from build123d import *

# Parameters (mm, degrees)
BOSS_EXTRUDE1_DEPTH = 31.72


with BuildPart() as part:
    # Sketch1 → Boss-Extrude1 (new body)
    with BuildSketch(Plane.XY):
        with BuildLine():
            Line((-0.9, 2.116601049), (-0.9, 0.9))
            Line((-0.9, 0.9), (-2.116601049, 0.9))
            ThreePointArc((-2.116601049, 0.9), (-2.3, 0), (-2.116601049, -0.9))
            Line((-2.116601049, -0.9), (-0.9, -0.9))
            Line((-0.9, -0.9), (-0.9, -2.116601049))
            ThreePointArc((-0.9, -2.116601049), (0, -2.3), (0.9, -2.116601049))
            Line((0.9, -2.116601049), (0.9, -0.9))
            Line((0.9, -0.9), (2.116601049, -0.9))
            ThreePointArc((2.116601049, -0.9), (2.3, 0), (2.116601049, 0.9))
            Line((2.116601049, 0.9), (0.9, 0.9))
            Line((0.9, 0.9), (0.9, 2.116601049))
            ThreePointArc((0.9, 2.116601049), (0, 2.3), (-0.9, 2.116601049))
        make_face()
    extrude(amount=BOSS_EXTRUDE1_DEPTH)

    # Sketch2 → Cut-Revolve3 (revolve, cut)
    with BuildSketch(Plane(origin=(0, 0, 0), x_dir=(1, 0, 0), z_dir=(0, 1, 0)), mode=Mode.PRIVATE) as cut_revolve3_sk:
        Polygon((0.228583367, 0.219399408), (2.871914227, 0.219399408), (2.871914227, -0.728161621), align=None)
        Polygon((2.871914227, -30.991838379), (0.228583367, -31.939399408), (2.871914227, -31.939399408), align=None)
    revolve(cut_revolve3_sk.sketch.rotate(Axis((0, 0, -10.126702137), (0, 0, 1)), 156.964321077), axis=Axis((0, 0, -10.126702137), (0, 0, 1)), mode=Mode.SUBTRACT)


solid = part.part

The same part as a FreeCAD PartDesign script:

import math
import FreeCAD as App
import Part
import Sketcher

doc = App.newDocument("Part")
body = doc.addObject("PartDesign::Body", "Body")

# Sketch on XY plane
sketch1 = body.newObject("Sketcher::SketchObject", "Sketch")
sketch1.AttachmentSupport = (doc.getObject("XY_Plane"), [""])
sketch1.MapMode = "FlatFace"
sketch1.addGeometry(Part.LineSegment(App.Vector(-0.9, 2.116601, 0), App.Vector(-0.9, 0.9, 0)), False)
sketch1.addGeometry(Part.LineSegment(App.Vector(-0.9, 0.9, 0), App.Vector(-2.116601, 0.9, 0)), False)
sketch1.addGeometry(Part.ArcOfCircle(Part.Circle(App.Vector(0, 0, 0), App.Vector(0, 0, 1), 2.3), math.radians(156.964316), math.radians(203.035684)), False)
sketch1.addGeometry(Part.LineSegment(App.Vector(-2.116601, -0.9, 0), App.Vector(-0.9, -0.9, 0)), False)
sketch1.addGeometry(Part.LineSegment(App.Vector(-0.9, -0.9, 0), App.Vector(-0.9, -2.116601, 0)), False)
sketch1.addGeometry(Part.ArcOfCircle(Part.Circle(App.Vector(0, 0, 0), App.Vector(0, 0, 1), 2.3), math.radians(-113.035684), math.radians(-66.964316)), False)
sketch1.addGeometry(Part.LineSegment(App.Vector(0.9, -2.116601, 0), App.Vector(0.9, -0.9, 0)), False)
sketch1.addGeometry(Part.LineSegment(App.Vector(0.9, -0.9, 0), App.Vector(2.116601, -0.9, 0)), False)
sketch1.addGeometry(Part.ArcOfCircle(Part.Circle(App.Vector(0, 0, 0), App.Vector(0, 0, 1), 2.3), math.radians(-23.035684), math.radians(23.035684)), False)
sketch1.addGeometry(Part.LineSegment(App.Vector(2.116601, 0.9, 0), App.Vector(0.9, 0.9, 0)), False)
sketch1.addGeometry(Part.LineSegment(App.Vector(0.9, 0.9, 0), App.Vector(0.9, 2.116601, 0)), False)
sketch1.addGeometry(Part.ArcOfCircle(Part.Circle(App.Vector(0, 0, 0), App.Vector(0, 0, 1), 2.3), math.radians(66.964316), math.radians(113.035684)), False)
sketch1.addConstraint(Sketcher.Constraint("Coincident", 0, 2, 1, 1))
sketch1.addConstraint(Sketcher.Constraint("Coincident", 1, 2, 2, 1))
sketch1.addConstraint(Sketcher.Constraint("Coincident", 2, 2, 3, 1))
sketch1.addConstraint(Sketcher.Constraint("Coincident", 3, 2, 4, 1))
sketch1.addConstraint(Sketcher.Constraint("Coincident", 4, 2, 5, 1))
sketch1.addConstraint(Sketcher.Constraint("Coincident", 5, 2, 6, 1))
sketch1.addConstraint(Sketcher.Constraint("Coincident", 6, 2, 7, 1))
sketch1.addConstraint(Sketcher.Constraint("Coincident", 7, 2, 8, 1))
sketch1.addConstraint(Sketcher.Constraint("Coincident", 8, 2, 9, 1))
sketch1.addConstraint(Sketcher.Constraint("Coincident", 9, 2, 10, 1))
sketch1.addConstraint(Sketcher.Constraint("Coincident", 10, 2, 11, 1))
sketch1.addConstraint(Sketcher.Constraint("Coincident", 11, 2, 0, 1))
sketch1.addConstraint(Sketcher.Constraint("Vertical", 0))
sketch1.addConstraint(Sketcher.Constraint("Horizontal", 1))
sketch1.addConstraint(Sketcher.Constraint("Horizontal", 3))
sketch1.addConstraint(Sketcher.Constraint("Vertical", 4))
sketch1.addConstraint(Sketcher.Constraint("Vertical", 6))
sketch1.addConstraint(Sketcher.Constraint("Horizontal", 7))
sketch1.addConstraint(Sketcher.Constraint("Horizontal", 9))
sketch1.addConstraint(Sketcher.Constraint("Vertical", 10))
sketch1.addConstraint(Sketcher.Constraint("Coincident", 2, 3, -1, 1))
sketch1.addConstraint(Sketcher.Constraint("Coincident", 5, 3, -1, 1))
sketch1.addConstraint(Sketcher.Constraint("Coincident", 8, 3, -1, 1))
sketch1.addConstraint(Sketcher.Constraint("Coincident", 11, 3, -1, 1))
sketch1.addConstraint(Sketcher.Constraint("Equal", 2, 5))
sketch1.addConstraint(Sketcher.Constraint("Equal", 5, 8))
sketch1.addConstraint(Sketcher.Constraint("Equal", 8, 11))
sketch1.addConstraint(Sketcher.Constraint("Symmetric", 0, 2, 6, 2, -1, 1))
sketch1.addConstraint(Sketcher.Constraint("Symmetric", 3, 2, 9, 2, -1, 1))
sketch1.addConstraint(Sketcher.Constraint("Symmetric", 3, 2, 6, 2, -2))
sketch1.addConstraint(Sketcher.Constraint("Equal", 9, 0))
sketch1.addConstraint(Sketcher.Constraint("Radius", 2, 2.3))
sketch1.addConstraint(Sketcher.Constraint("DistanceX", 0, 2, -1, 1, 0.9))
pad1 = body.newObject("PartDesign::Pad", "Pad")
pad1.Profile = sketch1
pad1.Length = 31.72

# Sketch on XZ plane
sketch2 = body.newObject("Sketcher::SketchObject", "Sketch001")
sketch2.AttachmentSupport = (doc.getObject("XZ_Plane"), [""])
sketch2.MapMode = "FlatFace"
sketch2.addGeometry(Part.LineSegment(App.Vector(2.871914, -0.219399, 0), App.Vector(0.228583, -0.219399, 0)), False)
sketch2.addGeometry(Part.LineSegment(App.Vector(0.228583, -0.219399, 0), App.Vector(2.871914, 0.728162, 0)), False)
sketch2.addGeometry(Part.LineSegment(App.Vector(2.871914, 0.728162, 0), App.Vector(2.871914, -0.219399, 0)), False)
sketch2.addGeometry(Part.LineSegment(App.Vector(2.871914, 30.991838, 0), App.Vector(0.228583, 31.939399, 0)), False)
sketch2.addGeometry(Part.LineSegment(App.Vector(0.228583, 31.939399, 0), App.Vector(2.871914, 31.939399, 0)), False)
sketch2.addGeometry(Part.LineSegment(App.Vector(2.871914, 31.939399, 0), App.Vector(2.871914, 30.991838, 0)), False)
sketch2.addConstraint(Sketcher.Constraint("Coincident", 0, 2, 1, 1))
sketch2.addConstraint(Sketcher.Constraint("Coincident", 1, 2, 2, 1))
sketch2.addConstraint(Sketcher.Constraint("Coincident", 2, 2, 0, 1))
sketch2.addConstraint(Sketcher.Constraint("Coincident", 3, 2, 4, 1))
sketch2.addConstraint(Sketcher.Constraint("Coincident", 4, 2, 5, 1))
sketch2.addConstraint(Sketcher.Constraint("Coincident", 5, 2, 3, 1))
sketch2.addConstraint(Sketcher.Constraint("Horizontal", 0))
sketch2.addConstraint(Sketcher.Constraint("Vertical", 2))
sketch2.addConstraint(Sketcher.Constraint("Horizontal", 4))
sketch2.addConstraint(Sketcher.Constraint("Vertical", 5))
sketch2.addConstraint(Sketcher.Constraint("Vertical", 0, 2, 3, 2))
sketch2.addConstraint(Sketcher.Constraint("Vertical", 2, 2, 4, 2))
sketch2.addConstraint(Sketcher.Constraint("Equal", 2, 5))
sketch2.addConstraint(Sketcher.Constraint("DistanceX", 0, 2, 0, 1, 2.643331))
sketch2.addConstraint(Sketcher.Constraint("DistanceY", 2, 2, 2, 1, 0.947561))
sketch2.addConstraint(Sketcher.Constraint("DistanceY", 0, 2, -1, 1, 0.219399))
sketch2.addConstraint(Sketcher.Constraint("DistanceY", -1, 1, 3, 2, 31.939399))
sketch2.addConstraint(Sketcher.Constraint("DistanceX", -1, 1, 0, 2, 0.228583))
groove = body.newObject("PartDesign::Groove", "Groove")
groove.Profile = sketch2
groove.ReferenceAxis = (sketch2, ["V_Axis"])
groove.Angle = 360

doc.recompute()
